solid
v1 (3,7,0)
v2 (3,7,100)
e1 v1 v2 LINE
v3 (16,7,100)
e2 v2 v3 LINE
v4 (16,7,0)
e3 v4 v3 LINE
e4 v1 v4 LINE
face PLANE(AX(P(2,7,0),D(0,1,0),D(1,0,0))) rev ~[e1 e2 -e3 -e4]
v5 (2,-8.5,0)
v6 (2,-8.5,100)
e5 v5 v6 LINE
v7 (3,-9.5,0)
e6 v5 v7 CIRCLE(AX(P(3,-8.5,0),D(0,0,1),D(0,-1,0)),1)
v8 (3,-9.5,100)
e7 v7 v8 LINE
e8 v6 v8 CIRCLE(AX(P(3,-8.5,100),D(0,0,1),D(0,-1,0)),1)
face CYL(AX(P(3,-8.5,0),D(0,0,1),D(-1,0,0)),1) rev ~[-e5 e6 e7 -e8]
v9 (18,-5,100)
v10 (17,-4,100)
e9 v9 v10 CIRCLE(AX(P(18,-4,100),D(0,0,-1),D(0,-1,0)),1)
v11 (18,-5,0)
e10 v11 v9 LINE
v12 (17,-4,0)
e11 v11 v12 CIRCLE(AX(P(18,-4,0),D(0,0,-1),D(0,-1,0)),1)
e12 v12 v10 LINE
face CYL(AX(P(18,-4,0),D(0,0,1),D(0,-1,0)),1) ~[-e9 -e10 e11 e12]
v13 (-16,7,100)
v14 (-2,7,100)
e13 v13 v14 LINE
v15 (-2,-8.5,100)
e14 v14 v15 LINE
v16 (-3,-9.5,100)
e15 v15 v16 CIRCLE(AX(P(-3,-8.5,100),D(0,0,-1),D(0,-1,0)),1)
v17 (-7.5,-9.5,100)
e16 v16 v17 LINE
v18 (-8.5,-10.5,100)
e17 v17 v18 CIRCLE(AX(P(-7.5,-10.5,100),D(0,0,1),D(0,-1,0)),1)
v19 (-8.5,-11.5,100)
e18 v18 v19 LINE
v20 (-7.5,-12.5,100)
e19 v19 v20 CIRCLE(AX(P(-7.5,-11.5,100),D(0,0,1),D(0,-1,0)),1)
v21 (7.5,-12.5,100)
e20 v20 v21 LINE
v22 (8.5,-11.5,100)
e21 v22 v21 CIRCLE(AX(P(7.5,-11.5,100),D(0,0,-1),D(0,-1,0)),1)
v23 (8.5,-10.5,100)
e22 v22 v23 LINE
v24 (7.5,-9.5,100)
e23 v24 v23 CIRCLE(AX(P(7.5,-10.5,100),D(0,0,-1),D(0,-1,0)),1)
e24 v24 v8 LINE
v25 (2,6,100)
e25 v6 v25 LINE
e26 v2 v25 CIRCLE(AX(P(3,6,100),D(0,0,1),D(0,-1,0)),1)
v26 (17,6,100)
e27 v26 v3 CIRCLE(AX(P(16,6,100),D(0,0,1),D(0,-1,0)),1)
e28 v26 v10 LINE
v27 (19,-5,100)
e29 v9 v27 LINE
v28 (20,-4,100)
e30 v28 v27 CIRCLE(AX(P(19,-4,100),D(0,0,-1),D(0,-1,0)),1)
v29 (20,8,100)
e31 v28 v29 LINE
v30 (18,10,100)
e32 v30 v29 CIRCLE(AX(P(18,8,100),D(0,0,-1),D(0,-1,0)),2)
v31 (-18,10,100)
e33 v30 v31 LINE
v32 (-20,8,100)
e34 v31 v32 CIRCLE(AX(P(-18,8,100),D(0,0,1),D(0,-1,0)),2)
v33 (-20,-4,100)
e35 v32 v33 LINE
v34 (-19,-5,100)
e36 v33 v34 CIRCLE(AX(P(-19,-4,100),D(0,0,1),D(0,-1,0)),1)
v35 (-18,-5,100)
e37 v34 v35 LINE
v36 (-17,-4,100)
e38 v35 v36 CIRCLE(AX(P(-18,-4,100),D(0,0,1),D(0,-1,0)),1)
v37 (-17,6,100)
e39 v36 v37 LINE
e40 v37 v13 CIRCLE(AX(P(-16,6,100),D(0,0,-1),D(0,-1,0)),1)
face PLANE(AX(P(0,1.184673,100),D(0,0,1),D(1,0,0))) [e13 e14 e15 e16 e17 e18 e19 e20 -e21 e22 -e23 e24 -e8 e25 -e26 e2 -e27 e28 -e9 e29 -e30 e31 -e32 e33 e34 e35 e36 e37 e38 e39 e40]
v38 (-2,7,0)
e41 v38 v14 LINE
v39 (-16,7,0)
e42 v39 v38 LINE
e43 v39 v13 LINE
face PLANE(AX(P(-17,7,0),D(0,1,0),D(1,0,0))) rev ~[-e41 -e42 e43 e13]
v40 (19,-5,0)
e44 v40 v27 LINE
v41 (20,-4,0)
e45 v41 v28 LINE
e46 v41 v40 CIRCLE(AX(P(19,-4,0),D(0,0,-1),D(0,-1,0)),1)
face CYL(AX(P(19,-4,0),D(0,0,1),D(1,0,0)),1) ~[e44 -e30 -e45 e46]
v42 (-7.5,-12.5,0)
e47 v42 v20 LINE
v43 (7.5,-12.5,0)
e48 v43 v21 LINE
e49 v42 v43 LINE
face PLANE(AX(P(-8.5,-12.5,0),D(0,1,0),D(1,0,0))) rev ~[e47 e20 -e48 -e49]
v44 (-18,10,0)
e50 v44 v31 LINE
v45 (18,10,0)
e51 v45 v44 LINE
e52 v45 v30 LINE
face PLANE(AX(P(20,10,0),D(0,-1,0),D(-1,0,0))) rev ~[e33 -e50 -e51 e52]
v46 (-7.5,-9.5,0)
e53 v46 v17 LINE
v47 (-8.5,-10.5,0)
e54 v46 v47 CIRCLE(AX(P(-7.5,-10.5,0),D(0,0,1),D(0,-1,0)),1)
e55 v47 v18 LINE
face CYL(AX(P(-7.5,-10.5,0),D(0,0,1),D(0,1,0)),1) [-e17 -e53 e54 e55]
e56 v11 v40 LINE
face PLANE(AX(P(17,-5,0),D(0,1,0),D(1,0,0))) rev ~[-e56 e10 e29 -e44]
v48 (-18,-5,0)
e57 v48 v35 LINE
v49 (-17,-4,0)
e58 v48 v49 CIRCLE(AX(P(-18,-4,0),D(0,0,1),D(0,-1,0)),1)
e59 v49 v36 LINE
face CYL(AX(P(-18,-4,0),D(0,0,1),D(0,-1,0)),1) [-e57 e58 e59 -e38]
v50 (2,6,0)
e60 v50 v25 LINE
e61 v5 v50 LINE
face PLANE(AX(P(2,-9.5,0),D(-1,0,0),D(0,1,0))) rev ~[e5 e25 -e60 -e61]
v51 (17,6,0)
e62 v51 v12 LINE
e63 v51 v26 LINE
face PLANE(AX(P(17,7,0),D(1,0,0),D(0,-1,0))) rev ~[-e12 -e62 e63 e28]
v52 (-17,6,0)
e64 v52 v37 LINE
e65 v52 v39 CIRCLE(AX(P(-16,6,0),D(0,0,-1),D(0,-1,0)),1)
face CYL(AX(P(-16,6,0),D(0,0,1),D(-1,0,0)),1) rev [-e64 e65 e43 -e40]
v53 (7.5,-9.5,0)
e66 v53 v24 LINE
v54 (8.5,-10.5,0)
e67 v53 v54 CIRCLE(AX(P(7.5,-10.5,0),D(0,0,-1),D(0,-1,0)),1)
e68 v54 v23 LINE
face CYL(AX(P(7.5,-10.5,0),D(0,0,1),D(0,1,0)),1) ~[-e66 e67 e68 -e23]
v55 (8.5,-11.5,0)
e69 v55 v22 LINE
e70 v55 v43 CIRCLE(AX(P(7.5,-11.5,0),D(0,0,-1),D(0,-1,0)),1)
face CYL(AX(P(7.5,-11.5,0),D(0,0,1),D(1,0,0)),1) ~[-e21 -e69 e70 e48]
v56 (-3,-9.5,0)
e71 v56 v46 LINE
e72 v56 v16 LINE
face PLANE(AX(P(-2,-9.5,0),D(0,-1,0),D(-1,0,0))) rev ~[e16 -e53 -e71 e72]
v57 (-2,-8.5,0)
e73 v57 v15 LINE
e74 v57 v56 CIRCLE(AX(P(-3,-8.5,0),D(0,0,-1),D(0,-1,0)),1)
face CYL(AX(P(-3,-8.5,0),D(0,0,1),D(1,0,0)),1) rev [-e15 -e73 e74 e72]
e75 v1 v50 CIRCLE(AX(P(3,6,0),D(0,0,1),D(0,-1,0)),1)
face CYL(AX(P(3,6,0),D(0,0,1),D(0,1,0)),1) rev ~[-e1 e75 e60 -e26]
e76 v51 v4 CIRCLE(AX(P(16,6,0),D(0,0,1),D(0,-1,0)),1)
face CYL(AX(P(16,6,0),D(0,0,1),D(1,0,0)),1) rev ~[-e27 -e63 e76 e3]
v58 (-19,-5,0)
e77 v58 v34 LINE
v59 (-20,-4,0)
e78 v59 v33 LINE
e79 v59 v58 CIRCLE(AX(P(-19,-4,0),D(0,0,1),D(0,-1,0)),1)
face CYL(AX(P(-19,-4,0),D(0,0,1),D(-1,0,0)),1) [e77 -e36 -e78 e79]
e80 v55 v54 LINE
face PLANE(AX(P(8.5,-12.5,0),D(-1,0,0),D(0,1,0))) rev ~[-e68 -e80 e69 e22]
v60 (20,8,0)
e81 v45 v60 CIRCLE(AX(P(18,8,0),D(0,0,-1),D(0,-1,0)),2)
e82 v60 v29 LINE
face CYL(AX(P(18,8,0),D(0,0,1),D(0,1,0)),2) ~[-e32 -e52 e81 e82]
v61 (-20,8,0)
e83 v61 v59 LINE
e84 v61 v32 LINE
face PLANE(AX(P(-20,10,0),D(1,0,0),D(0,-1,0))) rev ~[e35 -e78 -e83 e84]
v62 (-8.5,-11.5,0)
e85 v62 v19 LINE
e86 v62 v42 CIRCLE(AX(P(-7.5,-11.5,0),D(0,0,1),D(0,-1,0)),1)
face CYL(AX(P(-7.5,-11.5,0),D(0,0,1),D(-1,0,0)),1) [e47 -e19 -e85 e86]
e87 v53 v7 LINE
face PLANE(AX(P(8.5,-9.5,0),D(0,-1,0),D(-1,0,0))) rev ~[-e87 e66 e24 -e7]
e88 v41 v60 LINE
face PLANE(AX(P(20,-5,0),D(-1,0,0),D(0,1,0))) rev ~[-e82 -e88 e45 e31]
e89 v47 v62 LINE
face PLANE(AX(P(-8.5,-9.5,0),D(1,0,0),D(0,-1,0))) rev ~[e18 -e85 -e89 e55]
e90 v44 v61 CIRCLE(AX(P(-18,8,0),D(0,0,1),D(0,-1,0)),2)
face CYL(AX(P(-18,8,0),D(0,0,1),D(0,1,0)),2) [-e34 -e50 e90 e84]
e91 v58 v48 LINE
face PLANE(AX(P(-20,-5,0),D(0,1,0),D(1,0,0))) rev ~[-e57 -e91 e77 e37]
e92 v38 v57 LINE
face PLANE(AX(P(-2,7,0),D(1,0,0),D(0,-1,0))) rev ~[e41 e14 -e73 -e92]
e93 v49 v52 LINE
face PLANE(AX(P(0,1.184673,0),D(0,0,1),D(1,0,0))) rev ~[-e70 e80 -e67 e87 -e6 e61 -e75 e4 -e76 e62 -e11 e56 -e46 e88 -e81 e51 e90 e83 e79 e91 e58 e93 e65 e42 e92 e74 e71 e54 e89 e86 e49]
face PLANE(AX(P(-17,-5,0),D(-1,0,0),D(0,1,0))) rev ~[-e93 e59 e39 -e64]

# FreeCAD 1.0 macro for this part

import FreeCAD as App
import Part
import Sketcher

V = App.Vector


def edges_at(feature, points):
    """Names of the edges that pass closest to the given points."""
    edges = feature.Shape.Edges
    near = lambda p: min(range(len(edges)), key=lambda i: edges[i].distToShape(Part.Vertex(*p))[0])
    return sorted({f"Edge{near(p) + 1}" for p in points})

doc = App.newDocument("Part")
body = doc.addObject("PartDesign::Body", "Body")

# Sketch on XY plane
sketch1 = doc.addObject("Sketcher::SketchObject", "Sketch")
body.addObject(sketch1)
sketch1.AttachmentSupport = (doc.XY_Plane, [""])
sketch1.MapMode = "FlatFace"
sketch1.addGeometry(Part.LineSegment(V(20, 10, 0), V(-20, 10, 0)), False)
sketch1.addGeometry(Part.LineSegment(V(-20, 10, 0), V(-20, -5, 0)), False)
sketch1.addGeometry(Part.LineSegment(V(-20, -5, 0), V(-17, -5, 0)), False)
sketch1.addGeometry(Part.LineSegment(V(-17, -5, 0), V(-17, 7, 0)), False)
sketch1.addGeometry(Part.LineSegment(V(-17, 7, 0), V(-2, 7, 0)), False)
sketch1.addGeometry(Part.LineSegment(V(-2, 7, 0), V(-2, -9.5, 0)), False)
sketch1.addGeometry(Part.LineSegment(V(-2, -9.5, 0), V(-8.5, -9.5, 0)), False)
sketch1.addGeometry(Part.LineSegment(V(-8.5, -9.5, 0), V(-8.5, -12.5, 0)), False)
sketch1.addGeometry(Part.LineSegment(V(-8.5, -12.5, 0), V(8.5, -12.5, 0)), False)
sketch1.addGeometry(Part.LineSegment(V(8.5, -12.5, 0), V(8.5, -9.5, 0)), False)
sketch1.addGeometry(Part.LineSegment(V(8.5, -9.5, 0), V(2, -9.5, 0)), False)
sketch1.addGeometry(Part.LineSegment(V(2, -9.5, 0), V(2, 7, 0)), False)
sketch1.addGeometry(Part.LineSegment(V(2, 7, 0), V(17, 7, 0)), False)
sketch1.addGeometry(Part.LineSegment(V(17, 7, 0), V(17, -5, 0)), False)
sketch1.addGeometry(Part.LineSegment(V(17, -5, 0), V(20, -5, 0)), False)
sketch1.addGeometry(Part.LineSegment(V(20, -5, 0), V(20, 10, 0)), False)
sketch1.addConstraint(Sketcher.Constraint("Coincident", 0, 2, 1, 1))
sketch1.addConstraint(Sketcher.Constraint("Coincident", 1, 2, 2, 1))
sketch1.addConstraint(Sketcher.Constraint("Coincident", 2, 2, 3, 1))
sketch1.addConstraint(Sketcher.Constraint("Coincident", 3, 2, 4, 1))
sketch1.addConstraint(Sketcher.Constraint("Coincident", 4, 2, 5, 1))
sketch1.addConstraint(Sketcher.Constraint("Coincident", 5, 2, 6, 1))
sketch1.addConstraint(Sketcher.Constraint("Coincident", 6, 2, 7, 1))
sketch1.addConstraint(Sketcher.Constraint("Coincident", 7, 2, 8, 1))
sketch1.addConstraint(Sketcher.Constraint("Coincident", 8, 2, 9, 1))
sketch1.addConstraint(Sketcher.Constraint("Coincident", 9, 2, 10, 1))
sketch1.addConstraint(Sketcher.Constraint("Coincident", 10, 2, 11, 1))
sketch1.addConstraint(Sketcher.Constraint("Coincident", 11, 2, 12, 1))
sketch1.addConstraint(Sketcher.Constraint("Coincident", 12, 2, 13, 1))
sketch1.addConstraint(Sketcher.Constraint("Coincident", 13, 2, 14, 1))
sketch1.addConstraint(Sketcher.Constraint("Coincident", 14, 2, 15, 1))
sketch1.addConstraint(Sketcher.Constraint("Coincident", 15, 2, 0, 1))
sketch1.addConstraint(Sketcher.Constraint("Horizontal", 0))
sketch1.addConstraint(Sketcher.Constraint("Vertical", 1))
sketch1.addConstraint(Sketcher.Constraint("Horizontal", 2))
sketch1.addConstraint(Sketcher.Constraint("Vertical", 3))
sketch1.addConstraint(Sketcher.Constraint("Horizontal", 4))
sketch1.addConstraint(Sketcher.Constraint("Vertical", 5))
sketch1.addConstraint(Sketcher.Constraint("Horizontal", 6))
sketch1.addConstraint(Sketcher.Constraint("Vertical", 7))
sketch1.addConstraint(Sketcher.Constraint("Horizontal", 8))
sketch1.addConstraint(Sketcher.Constraint("Vertical", 9))
sketch1.addConstraint(Sketcher.Constraint("Horizontal", 10))
sketch1.addConstraint(Sketcher.Constraint("Vertical", 11))
sketch1.addConstraint(Sketcher.Constraint("Horizontal", 12))
sketch1.addConstraint(Sketcher.Constraint("Vertical", 13))
sketch1.addConstraint(Sketcher.Constraint("Horizontal", 14))
sketch1.addConstraint(Sketcher.Constraint("Vertical", 15))
sketch1.addConstraint(Sketcher.Constraint("Symmetric", 6, 2, 9, 2, -2))
sketch1.addConstraint(Sketcher.Constraint("Symmetric", 4, 2, 11, 2, -2))
sketch1.addConstraint(Sketcher.Constraint("Symmetric", 2, 2, 13, 2, -2))
sketch1.addConstraint(Sketcher.Constraint("Equal", 2, 14))
sketch1.addConstraint(Sketcher.Constraint("Equal", 12, 1))
sketch1.addConstraint(Sketcher.Constraint("Equal", 14, 7))
sketch1.addConstraint(Sketcher.Constraint("DistanceX", 0, 2, 0, 1, 40.0))
sketch1.addConstraint(Sketcher.Constraint("DistanceX", 2, 1, 2, 2, 3.0))
sketch1.addConstraint(Sketcher.Constraint("DistanceX", 4, 1, 4, 2, 15.0))
sketch1.addConstraint(Sketcher.Constraint("DistanceX", 8, 1, 8, 2, 17.0))
sketch1.addConstraint(Sketcher.Constraint("DistanceY", 3, 1, 3, 2, 12.0))
sketch1.addConstraint(Sketcher.Constraint("DistanceY", 5, 2, 5, 1, 16.5))
sketch1.addConstraint(Sketcher.Constraint("DistanceY", -1, 1, 0, 2, 10.0))
pad1 = doc.addObject("PartDesign::Pad", "Pad")
body.addObject(pad1)
pad1.Profile = sketch1
pad1.Length = 100
doc.recompute()

fillet = doc.addObject("PartDesign::Fillet", "Fillet")
body.addObject(fillet)
fillet.Base = (pad1, edges_at(pad1, [(-20, 10, 50), (20, 10, 50)]))
fillet.Radius = 2
doc.recompute()

fillet2 = doc.addObject("PartDesign::Fillet", "Fillet001")
body.addObject(fillet2)
fillet2.Base = (fillet, edges_at(fillet, [
    (-17, -5, 50),
    (-20, -5, 50),
    (-17, 7, 50),
    (2, 7, 50),
    (8.5, -12.5, 50),
    (8.5, -9.5, 50),
    (-8.5, -12.5, 50),
    (-8.5, -9.5, 50),
    (-2, -9.5, 50),
    (2, -9.5, 50),
    (17, -5, 50),
    (20, -5, 50),
    (17, 7, 50),
]))
fillet2.Radius = 1

doc.recompute()
